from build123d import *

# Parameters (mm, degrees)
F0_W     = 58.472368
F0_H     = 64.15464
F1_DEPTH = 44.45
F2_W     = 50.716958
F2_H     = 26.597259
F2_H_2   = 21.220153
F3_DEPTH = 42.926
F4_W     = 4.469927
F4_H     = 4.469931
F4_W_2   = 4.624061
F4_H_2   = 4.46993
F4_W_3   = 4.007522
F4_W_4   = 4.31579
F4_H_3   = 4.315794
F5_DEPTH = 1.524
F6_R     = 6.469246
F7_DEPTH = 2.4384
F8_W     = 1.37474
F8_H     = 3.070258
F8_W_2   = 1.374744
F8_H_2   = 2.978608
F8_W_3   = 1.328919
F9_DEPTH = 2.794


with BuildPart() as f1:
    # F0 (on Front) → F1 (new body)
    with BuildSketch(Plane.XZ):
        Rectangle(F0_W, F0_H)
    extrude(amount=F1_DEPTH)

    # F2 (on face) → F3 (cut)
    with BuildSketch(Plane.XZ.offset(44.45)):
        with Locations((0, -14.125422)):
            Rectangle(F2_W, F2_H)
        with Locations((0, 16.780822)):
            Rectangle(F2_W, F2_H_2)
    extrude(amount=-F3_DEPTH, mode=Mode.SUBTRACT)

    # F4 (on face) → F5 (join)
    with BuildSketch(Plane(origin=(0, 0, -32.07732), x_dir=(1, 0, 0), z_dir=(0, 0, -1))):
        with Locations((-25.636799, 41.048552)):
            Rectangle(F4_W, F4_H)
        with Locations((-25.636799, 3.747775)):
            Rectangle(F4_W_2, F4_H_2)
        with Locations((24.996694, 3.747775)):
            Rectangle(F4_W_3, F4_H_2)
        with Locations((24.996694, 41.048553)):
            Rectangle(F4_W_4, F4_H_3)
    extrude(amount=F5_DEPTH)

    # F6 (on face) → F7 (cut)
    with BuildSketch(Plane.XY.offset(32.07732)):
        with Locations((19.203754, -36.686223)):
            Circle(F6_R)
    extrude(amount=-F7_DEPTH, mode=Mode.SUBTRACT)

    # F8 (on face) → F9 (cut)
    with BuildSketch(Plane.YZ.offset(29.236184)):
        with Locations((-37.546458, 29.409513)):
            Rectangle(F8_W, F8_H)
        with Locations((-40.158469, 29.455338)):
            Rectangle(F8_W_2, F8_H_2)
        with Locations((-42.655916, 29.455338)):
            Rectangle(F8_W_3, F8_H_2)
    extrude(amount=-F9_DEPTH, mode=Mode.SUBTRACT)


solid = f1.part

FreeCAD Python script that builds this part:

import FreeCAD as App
import Part
import Sketcher
Q = App.Units.Quantity


def add_polygon(sketch, points):
    """Adds a closed chain of lines whose ends are joined by coincident constraints."""
    first, n = sketch.GeometryCount, len(points)
    for a, b in zip(points, points[1:] + points[:1]):
        sketch.addGeometry(Part.LineSegment(App.Vector(*a, 0), App.Vector(*b, 0)), False)
    for i in range(n):
        sketch.addConstraint(Sketcher.Constraint("Coincident", first + i, 2, first + (i + 1) % n, 1))

doc = App.newDocument("Part")
body = doc.addObject("PartDesign::Body", "Body")

# Sketch on XZ plane
sketch1 = body.newObject("Sketcher::SketchObject", "Sketch")
sketch1.AttachmentSupport = (doc.getObject("XZ_Plane"), [""])
sketch1.MapMode = "FlatFace"
add_polygon(sketch1, [(-29.236184, 32.07732), (-29.236184, -32.07732), (29.236184, -32.07732), (29.236184, 32.07732)])  # lines 0-3
sketch1.addConstraint(Sketcher.Constraint("Vertical", 0))
sketch1.addConstraint(Sketcher.Constraint("Horizontal", 1))
sketch1.addConstraint(Sketcher.Constraint("Vertical", 2))
sketch1.addConstraint(Sketcher.Constraint("Horizontal", 3))
sketch1.addConstraint(Sketcher.Constraint("Symmetric", 0, 2, 2, 2, -1, 1))
sketch1.addConstraint(Sketcher.Constraint("DistanceX", 1, 1, 1, 2, Q("58.472368 mm")))
sketch1.addConstraint(Sketcher.Constraint("DistanceY", 0, 2, 0, 1, Q("64.15464 mm")))
pad1 = body.newObject("PartDesign::Pad", "Pad")
pad1.Profile = sketch1
pad1.Length = Q("1.75 in")

# Sketch on XZ plane
sketch2 = body.newObject("Sketcher::SketchObject", "Sketch001")
sketch2.AttachmentSupport = (doc.getObject("XZ_Plane"), [""])
sketch2.MapMode = "FlatFace"
sketch2.AttachmentOffset = App.Placement(App.Vector(0, 0, 1.75 * 25.4), App.Rotation())
add_polygon(sketch2, [(-25.358479, -0.826793), (-25.358479, -27.424052), (25.358479, -27.424052), (25.358479, -0.826793)])  # lines 0-3
add_polygon(sketch2, [(-25.358479, 27.390898), (-25.358479, 6.170745), (25.358479, 6.170745), (25.358479, 27.390898)])  # lines 4-7
sketch2.addConstraint(Sketcher.Constraint("Vertical", 0))
sketch2.addConstraint(Sketcher.Constraint("Horizontal", 1))
sketch2.addConstraint(Sketcher.Constraint("Vertical", 2))
sketch2.addConstraint(Sketcher.Constraint("Horizontal", 3))
sketch2.addConstraint(Sketcher.Constraint("Vertical", 4))
sketch2.addConstraint(Sketcher.Constraint("Horizontal", 5))
sketch2.addConstraint(Sketcher.Constraint("Vertical", 6))
sketch2.addConstraint(Sketcher.Constraint("Horizontal", 7))
sketch2.addConstraint(Sketcher.Constraint("Vertical", 3, 2, 4, 2))
sketch2.addConstraint(Sketcher.Constraint("Vertical", 2, 2, 5, 2))
sketch2.addConstraint(Sketcher.Constraint("DistanceY", 0, 2, 0, 1, Q("26.597259 mm")))
sketch2.addConstraint(Sketcher.Constraint("DistanceY", -1, 1, 6, 2, Q("27.390898 mm")))
sketch2.addConstraint(Sketcher.Constraint("DistanceX", 1, 1, 1, 2, Q("50.716958 mm")))
sketch2.addConstraint(Sketcher.Constraint("DistanceY", 4, 2, 4, 1, Q("21.220153 mm")))
sketch2.addConstraint(Sketcher.Constraint("DistanceX", 0, 2, -1, 1, Q("25.358479 mm")))
sketch2.addConstraint(Sketcher.Constraint("DistanceY", 0, 2, -1, 1, Q("27.424052 mm")))
pocket1 = body.newObject("PartDesign::Pocket", "Pocket")
pocket1.Profile = sketch2
pocket1.Length = Q("1.69 in")

# Sketch on XY plane
sketch3 = body.newObject("Sketcher::SketchObject", "Sketch002")
sketch3.AttachmentSupport = (doc.getObject("XY_Plane"), [""])
sketch3.MapMode = "FlatFace"
sketch3.AttachmentOffset = App.Placement(App.Vector(0, 0, -32.07732), App.Rotation())
add_polygon(sketch3, [(-27.871762, -43.283518), (-27.871762, -38.813586), (-23.401836, -38.813586), (-23.401836, -43.283518)])  # lines 0-3
add_polygon(sketch3, [(-27.948829, -5.98274), (-27.948829, -1.51281), (-23.324769, -1.51281), (-23.324769, -5.98274)])  # lines 4-7
add_polygon(sketch3, [(22.992933, -5.98274), (22.992933, -1.51281), (27.000455, -1.51281), (27.000455, -5.98274)])  # lines 8-11
add_polygon(sketch3, [(22.838799, -43.20645), (22.838799, -38.890656), (27.154589, -38.890656), (27.154589, -43.20645)])  # lines 12-15
sketch3.addConstraint(Sketcher.Constraint("Vertical", 0))
sketch3.addConstraint(Sketcher.Constraint("Horizontal", 1))
sketch3.addConstraint(Sketcher.Constraint("Vertical", 2))
sketch3.addConstraint(Sketcher.Constraint("Horizontal", 3))
sketch3.addConstraint(Sketcher.Constraint("Vertical", 4))
sketch3.addConstraint(Sketcher.Constraint("Horizontal", 5))
sketch3.addConstraint(Sketcher.Constraint("Vertical", 6))
sketch3.addConstraint(Sketcher.Constraint("Horizontal", 7))
sketch3.addConstraint(Sketcher.Constraint("Vertical", 8))
sketch3.addConstraint(Sketcher.Constraint("Horizontal", 9))
sketch3.addConstraint(Sketcher.Constraint("Vertical", 10))
sketch3.addConstraint(Sketcher.Constraint("Horizontal", 11))
sketch3.addConstraint(Sketcher.Constraint("Vertical", 12))
sketch3.addConstraint(Sketcher.Constraint("Horizontal", 13))
sketch3.addConstraint(Sketcher.Constraint("Vertical", 14))
sketch3.addConstraint(Sketcher.Constraint("Horizontal", 15))
sketch3.addConstraint(Sketcher.Constraint("Horizontal", 5, 2, 8, 2))
sketch3.addConstraint(Sketcher.Constraint("Horizontal", 7, 2, 10, 2))
sketch3.addConstraint(Sketcher.Constraint("Equal", 2, 4))
sketch3.addConstraint(Sketcher.Constraint("DistanceX", 5, 1, 5, 2, Q("4.624061 mm")))
sketch3.addConstraint(Sketcher.Constraint("DistanceX", 9, 1, 9, 2, Q("4.007522 mm")))
sketch3.addConstraint(Sketcher.Constraint("DistanceX", 13, 1, 13, 2, Q("4.31579 mm")))
sketch3.addConstraint(Sketcher.Constraint("DistanceY", 0, 1, 0, 2, Q("4.469931 mm")))
sketch3.addConstraint(Sketcher.Constraint("DistanceX", -1, 1, 12, 2, Q("22.838799 mm")))
sketch3.addConstraint(Sketcher.Constraint("DistanceX", 5, 2, 8, 2, Q("46.317701 mm")))
sketch3.addConstraint(Sketcher.Constraint("DistanceX", 1, 1, 1, 2, Q("4.469927 mm")))
sketch3.addConstraint(Sketcher.Constraint("DistanceY", 12, 1, 12, 2, Q("4.315794 mm")))
sketch3.addConstraint(Sketcher.Constraint("DistanceX", 4, 2, -1, 1, Q("27.948829 mm")))
sketch3.addConstraint(Sketcher.Constraint("DistanceY", 4, 2, -1, 1, Q("1.51281 mm")))
sketch3.addConstraint(Sketcher.Constraint("DistanceY", 14, 2, -1, 1, Q("43.20645 mm")))
sketch3.addConstraint(Sketcher.Constraint("DistanceX", 1, 2, 8, 2, Q("46.394768 mm")))
sketch3.addConstraint(Sketcher.Constraint("DistanceY", 12, 2, 1, 2, Q("0.07707 mm")))
pad2 = body.newObject("PartDesign::Pad", "Pad001")
pad2.Profile = sketch3
pad2.Length = Q("0.06 in")
pad2.Reversed = True

# Sketch on XY plane
sketch4 = body.newObject("Sketcher::SketchObject", "Sketch003")
sketch4.AttachmentSupport = (doc.getObject("XY_Plane"), [""])
sketch4.MapMode = "FlatFace"
sketch4.AttachmentOffset = App.Placement(App.Vector(0, 0, 32.07732), App.Rotation())
sketch4.addGeometry(Part.Circle(App.Vector(19.203754, -36.686223, 0), App.Vector(0, 0, 1), 6.469246), False)
sketch4.addConstraint(Sketcher.Constraint("Diameter", 0, Q("12.938492 mm")))
sketch4.addConstraint(Sketcher.Constraint("DistanceX", -1, 1, 0, 3, Q("19.203754 mm")))
sketch4.addConstraint(Sketcher.Constraint("DistanceY", 0, 3, -1, 1, Q("36.686223 mm")))
pocket2 = body.newObject("PartDesign::Pocket", "Pocket001")
pocket2.Profile = sketch4
pocket2.Length = Q("0.096 in")

# Sketch on YZ plane
sketch5 = body.newObject("Sketcher::SketchObject", "Sketch004")
sketch5.AttachmentSupport = (doc.getObject("YZ_Plane"), [""])
sketch5.MapMode = "FlatFace"
sketch5.AttachmentOffset = App.Placement(App.Vector(0, 0, 29.236184), App.Rotation())
add_polygon(sketch5, [(-38.233828, 30.944642), (-38.233828, 27.874384), (-36.859088, 27.874384), (-36.859088, 30.944642)])  # lines 0-3
add_polygon(sketch5, [(-40.845841, 30.944642), (-40.845841, 27.966034), (-39.471097, 27.966034), (-39.471097, 30.944642)])  # lines 4-7
add_polygon(sketch5, [(-43.320375, 30.944642), (-43.320375, 27.966034), (-41.991456, 27.966034), (-41.991456, 30.944642)])  # lines 8-11
sketch5.addConstraint(Sketcher.Constraint("Vertical", 0))
sketch5.addConstraint(Sketcher.Constraint("Horizontal", 1))
sketch5.addConstraint(Sketcher.Constraint("Vertical", 2))
sketch5.addConstraint(Sketcher.Constraint("Horizontal", 3))
sketch5.addConstraint(Sketcher.Constraint("Vertical", 4))
sketch5.addConstraint(Sketcher.Constraint("Horizontal", 5))
sketch5.addConstraint(Sketcher.Constraint("Vertical", 6))
sketch5.addConstraint(Sketcher.Constraint("Horizontal", 7))
sketch5.addConstraint(Sketcher.Constraint("Vertical", 8))
sketch5.addConstraint(Sketcher.Constraint("Horizontal", 9))
sketch5.addConstraint(Sketcher.Constraint("Vertical", 10))
sketch5.addConstraint(Sketcher.Constraint("Horizontal", 11))
sketch5.addConstraint(Sketcher.Constraint("Horizontal", 3, 2, 6, 2))
sketch5.addConstraint(Sketcher.Constraint("Horizontal", 5, 2, 8, 2))
sketch5.addConstraint(Sketcher.Constraint("Horizontal", 7, 2, 10, 2))
sketch5.addConstraint(Sketcher.Constraint("DistanceX", 1, 1, 1, 2, Q("1.37474 mm")))
sketch5.addConstraint(Sketcher.Constraint("DistanceX", 9, 1, 9, 2, Q("1.328919 mm")))
sketch5.addConstraint(Sketcher.Constraint("DistanceY", 0, 2, 0, 1, Q("3.070258 mm")))
sketch5.addConstraint(Sketcher.Constraint("DistanceY", 4, 2, 4, 1, Q("2.978608 mm")))
sketch5.addConstraint(Sketcher.Constraint("DistanceX", 5, 1, 5, 2, Q("1.374744 mm")))
sketch5.addConstraint(Sketcher.Constraint("DistanceX", 0, 2, -1, 1, Q("38.233828 mm")))
sketch5.addConstraint(Sketcher.Constraint("DistanceX", 4, 2, -1, 1, Q("40.845841 mm")))
sketch5.addConstraint(Sketcher.Constraint("DistanceX", 8, 2, 5, 2, Q("3.849278 mm")))
sketch5.addConstraint(Sketcher.Constraint("DistanceY", -1, 1, 0, 2, Q("27.874384 mm")))
pocket3 = body.newObject("PartDesign::Pocket", "Pocket002")
pocket3.Profile = sketch5
pocket3.Length = Q("0.11 in")

doc.recompute()
